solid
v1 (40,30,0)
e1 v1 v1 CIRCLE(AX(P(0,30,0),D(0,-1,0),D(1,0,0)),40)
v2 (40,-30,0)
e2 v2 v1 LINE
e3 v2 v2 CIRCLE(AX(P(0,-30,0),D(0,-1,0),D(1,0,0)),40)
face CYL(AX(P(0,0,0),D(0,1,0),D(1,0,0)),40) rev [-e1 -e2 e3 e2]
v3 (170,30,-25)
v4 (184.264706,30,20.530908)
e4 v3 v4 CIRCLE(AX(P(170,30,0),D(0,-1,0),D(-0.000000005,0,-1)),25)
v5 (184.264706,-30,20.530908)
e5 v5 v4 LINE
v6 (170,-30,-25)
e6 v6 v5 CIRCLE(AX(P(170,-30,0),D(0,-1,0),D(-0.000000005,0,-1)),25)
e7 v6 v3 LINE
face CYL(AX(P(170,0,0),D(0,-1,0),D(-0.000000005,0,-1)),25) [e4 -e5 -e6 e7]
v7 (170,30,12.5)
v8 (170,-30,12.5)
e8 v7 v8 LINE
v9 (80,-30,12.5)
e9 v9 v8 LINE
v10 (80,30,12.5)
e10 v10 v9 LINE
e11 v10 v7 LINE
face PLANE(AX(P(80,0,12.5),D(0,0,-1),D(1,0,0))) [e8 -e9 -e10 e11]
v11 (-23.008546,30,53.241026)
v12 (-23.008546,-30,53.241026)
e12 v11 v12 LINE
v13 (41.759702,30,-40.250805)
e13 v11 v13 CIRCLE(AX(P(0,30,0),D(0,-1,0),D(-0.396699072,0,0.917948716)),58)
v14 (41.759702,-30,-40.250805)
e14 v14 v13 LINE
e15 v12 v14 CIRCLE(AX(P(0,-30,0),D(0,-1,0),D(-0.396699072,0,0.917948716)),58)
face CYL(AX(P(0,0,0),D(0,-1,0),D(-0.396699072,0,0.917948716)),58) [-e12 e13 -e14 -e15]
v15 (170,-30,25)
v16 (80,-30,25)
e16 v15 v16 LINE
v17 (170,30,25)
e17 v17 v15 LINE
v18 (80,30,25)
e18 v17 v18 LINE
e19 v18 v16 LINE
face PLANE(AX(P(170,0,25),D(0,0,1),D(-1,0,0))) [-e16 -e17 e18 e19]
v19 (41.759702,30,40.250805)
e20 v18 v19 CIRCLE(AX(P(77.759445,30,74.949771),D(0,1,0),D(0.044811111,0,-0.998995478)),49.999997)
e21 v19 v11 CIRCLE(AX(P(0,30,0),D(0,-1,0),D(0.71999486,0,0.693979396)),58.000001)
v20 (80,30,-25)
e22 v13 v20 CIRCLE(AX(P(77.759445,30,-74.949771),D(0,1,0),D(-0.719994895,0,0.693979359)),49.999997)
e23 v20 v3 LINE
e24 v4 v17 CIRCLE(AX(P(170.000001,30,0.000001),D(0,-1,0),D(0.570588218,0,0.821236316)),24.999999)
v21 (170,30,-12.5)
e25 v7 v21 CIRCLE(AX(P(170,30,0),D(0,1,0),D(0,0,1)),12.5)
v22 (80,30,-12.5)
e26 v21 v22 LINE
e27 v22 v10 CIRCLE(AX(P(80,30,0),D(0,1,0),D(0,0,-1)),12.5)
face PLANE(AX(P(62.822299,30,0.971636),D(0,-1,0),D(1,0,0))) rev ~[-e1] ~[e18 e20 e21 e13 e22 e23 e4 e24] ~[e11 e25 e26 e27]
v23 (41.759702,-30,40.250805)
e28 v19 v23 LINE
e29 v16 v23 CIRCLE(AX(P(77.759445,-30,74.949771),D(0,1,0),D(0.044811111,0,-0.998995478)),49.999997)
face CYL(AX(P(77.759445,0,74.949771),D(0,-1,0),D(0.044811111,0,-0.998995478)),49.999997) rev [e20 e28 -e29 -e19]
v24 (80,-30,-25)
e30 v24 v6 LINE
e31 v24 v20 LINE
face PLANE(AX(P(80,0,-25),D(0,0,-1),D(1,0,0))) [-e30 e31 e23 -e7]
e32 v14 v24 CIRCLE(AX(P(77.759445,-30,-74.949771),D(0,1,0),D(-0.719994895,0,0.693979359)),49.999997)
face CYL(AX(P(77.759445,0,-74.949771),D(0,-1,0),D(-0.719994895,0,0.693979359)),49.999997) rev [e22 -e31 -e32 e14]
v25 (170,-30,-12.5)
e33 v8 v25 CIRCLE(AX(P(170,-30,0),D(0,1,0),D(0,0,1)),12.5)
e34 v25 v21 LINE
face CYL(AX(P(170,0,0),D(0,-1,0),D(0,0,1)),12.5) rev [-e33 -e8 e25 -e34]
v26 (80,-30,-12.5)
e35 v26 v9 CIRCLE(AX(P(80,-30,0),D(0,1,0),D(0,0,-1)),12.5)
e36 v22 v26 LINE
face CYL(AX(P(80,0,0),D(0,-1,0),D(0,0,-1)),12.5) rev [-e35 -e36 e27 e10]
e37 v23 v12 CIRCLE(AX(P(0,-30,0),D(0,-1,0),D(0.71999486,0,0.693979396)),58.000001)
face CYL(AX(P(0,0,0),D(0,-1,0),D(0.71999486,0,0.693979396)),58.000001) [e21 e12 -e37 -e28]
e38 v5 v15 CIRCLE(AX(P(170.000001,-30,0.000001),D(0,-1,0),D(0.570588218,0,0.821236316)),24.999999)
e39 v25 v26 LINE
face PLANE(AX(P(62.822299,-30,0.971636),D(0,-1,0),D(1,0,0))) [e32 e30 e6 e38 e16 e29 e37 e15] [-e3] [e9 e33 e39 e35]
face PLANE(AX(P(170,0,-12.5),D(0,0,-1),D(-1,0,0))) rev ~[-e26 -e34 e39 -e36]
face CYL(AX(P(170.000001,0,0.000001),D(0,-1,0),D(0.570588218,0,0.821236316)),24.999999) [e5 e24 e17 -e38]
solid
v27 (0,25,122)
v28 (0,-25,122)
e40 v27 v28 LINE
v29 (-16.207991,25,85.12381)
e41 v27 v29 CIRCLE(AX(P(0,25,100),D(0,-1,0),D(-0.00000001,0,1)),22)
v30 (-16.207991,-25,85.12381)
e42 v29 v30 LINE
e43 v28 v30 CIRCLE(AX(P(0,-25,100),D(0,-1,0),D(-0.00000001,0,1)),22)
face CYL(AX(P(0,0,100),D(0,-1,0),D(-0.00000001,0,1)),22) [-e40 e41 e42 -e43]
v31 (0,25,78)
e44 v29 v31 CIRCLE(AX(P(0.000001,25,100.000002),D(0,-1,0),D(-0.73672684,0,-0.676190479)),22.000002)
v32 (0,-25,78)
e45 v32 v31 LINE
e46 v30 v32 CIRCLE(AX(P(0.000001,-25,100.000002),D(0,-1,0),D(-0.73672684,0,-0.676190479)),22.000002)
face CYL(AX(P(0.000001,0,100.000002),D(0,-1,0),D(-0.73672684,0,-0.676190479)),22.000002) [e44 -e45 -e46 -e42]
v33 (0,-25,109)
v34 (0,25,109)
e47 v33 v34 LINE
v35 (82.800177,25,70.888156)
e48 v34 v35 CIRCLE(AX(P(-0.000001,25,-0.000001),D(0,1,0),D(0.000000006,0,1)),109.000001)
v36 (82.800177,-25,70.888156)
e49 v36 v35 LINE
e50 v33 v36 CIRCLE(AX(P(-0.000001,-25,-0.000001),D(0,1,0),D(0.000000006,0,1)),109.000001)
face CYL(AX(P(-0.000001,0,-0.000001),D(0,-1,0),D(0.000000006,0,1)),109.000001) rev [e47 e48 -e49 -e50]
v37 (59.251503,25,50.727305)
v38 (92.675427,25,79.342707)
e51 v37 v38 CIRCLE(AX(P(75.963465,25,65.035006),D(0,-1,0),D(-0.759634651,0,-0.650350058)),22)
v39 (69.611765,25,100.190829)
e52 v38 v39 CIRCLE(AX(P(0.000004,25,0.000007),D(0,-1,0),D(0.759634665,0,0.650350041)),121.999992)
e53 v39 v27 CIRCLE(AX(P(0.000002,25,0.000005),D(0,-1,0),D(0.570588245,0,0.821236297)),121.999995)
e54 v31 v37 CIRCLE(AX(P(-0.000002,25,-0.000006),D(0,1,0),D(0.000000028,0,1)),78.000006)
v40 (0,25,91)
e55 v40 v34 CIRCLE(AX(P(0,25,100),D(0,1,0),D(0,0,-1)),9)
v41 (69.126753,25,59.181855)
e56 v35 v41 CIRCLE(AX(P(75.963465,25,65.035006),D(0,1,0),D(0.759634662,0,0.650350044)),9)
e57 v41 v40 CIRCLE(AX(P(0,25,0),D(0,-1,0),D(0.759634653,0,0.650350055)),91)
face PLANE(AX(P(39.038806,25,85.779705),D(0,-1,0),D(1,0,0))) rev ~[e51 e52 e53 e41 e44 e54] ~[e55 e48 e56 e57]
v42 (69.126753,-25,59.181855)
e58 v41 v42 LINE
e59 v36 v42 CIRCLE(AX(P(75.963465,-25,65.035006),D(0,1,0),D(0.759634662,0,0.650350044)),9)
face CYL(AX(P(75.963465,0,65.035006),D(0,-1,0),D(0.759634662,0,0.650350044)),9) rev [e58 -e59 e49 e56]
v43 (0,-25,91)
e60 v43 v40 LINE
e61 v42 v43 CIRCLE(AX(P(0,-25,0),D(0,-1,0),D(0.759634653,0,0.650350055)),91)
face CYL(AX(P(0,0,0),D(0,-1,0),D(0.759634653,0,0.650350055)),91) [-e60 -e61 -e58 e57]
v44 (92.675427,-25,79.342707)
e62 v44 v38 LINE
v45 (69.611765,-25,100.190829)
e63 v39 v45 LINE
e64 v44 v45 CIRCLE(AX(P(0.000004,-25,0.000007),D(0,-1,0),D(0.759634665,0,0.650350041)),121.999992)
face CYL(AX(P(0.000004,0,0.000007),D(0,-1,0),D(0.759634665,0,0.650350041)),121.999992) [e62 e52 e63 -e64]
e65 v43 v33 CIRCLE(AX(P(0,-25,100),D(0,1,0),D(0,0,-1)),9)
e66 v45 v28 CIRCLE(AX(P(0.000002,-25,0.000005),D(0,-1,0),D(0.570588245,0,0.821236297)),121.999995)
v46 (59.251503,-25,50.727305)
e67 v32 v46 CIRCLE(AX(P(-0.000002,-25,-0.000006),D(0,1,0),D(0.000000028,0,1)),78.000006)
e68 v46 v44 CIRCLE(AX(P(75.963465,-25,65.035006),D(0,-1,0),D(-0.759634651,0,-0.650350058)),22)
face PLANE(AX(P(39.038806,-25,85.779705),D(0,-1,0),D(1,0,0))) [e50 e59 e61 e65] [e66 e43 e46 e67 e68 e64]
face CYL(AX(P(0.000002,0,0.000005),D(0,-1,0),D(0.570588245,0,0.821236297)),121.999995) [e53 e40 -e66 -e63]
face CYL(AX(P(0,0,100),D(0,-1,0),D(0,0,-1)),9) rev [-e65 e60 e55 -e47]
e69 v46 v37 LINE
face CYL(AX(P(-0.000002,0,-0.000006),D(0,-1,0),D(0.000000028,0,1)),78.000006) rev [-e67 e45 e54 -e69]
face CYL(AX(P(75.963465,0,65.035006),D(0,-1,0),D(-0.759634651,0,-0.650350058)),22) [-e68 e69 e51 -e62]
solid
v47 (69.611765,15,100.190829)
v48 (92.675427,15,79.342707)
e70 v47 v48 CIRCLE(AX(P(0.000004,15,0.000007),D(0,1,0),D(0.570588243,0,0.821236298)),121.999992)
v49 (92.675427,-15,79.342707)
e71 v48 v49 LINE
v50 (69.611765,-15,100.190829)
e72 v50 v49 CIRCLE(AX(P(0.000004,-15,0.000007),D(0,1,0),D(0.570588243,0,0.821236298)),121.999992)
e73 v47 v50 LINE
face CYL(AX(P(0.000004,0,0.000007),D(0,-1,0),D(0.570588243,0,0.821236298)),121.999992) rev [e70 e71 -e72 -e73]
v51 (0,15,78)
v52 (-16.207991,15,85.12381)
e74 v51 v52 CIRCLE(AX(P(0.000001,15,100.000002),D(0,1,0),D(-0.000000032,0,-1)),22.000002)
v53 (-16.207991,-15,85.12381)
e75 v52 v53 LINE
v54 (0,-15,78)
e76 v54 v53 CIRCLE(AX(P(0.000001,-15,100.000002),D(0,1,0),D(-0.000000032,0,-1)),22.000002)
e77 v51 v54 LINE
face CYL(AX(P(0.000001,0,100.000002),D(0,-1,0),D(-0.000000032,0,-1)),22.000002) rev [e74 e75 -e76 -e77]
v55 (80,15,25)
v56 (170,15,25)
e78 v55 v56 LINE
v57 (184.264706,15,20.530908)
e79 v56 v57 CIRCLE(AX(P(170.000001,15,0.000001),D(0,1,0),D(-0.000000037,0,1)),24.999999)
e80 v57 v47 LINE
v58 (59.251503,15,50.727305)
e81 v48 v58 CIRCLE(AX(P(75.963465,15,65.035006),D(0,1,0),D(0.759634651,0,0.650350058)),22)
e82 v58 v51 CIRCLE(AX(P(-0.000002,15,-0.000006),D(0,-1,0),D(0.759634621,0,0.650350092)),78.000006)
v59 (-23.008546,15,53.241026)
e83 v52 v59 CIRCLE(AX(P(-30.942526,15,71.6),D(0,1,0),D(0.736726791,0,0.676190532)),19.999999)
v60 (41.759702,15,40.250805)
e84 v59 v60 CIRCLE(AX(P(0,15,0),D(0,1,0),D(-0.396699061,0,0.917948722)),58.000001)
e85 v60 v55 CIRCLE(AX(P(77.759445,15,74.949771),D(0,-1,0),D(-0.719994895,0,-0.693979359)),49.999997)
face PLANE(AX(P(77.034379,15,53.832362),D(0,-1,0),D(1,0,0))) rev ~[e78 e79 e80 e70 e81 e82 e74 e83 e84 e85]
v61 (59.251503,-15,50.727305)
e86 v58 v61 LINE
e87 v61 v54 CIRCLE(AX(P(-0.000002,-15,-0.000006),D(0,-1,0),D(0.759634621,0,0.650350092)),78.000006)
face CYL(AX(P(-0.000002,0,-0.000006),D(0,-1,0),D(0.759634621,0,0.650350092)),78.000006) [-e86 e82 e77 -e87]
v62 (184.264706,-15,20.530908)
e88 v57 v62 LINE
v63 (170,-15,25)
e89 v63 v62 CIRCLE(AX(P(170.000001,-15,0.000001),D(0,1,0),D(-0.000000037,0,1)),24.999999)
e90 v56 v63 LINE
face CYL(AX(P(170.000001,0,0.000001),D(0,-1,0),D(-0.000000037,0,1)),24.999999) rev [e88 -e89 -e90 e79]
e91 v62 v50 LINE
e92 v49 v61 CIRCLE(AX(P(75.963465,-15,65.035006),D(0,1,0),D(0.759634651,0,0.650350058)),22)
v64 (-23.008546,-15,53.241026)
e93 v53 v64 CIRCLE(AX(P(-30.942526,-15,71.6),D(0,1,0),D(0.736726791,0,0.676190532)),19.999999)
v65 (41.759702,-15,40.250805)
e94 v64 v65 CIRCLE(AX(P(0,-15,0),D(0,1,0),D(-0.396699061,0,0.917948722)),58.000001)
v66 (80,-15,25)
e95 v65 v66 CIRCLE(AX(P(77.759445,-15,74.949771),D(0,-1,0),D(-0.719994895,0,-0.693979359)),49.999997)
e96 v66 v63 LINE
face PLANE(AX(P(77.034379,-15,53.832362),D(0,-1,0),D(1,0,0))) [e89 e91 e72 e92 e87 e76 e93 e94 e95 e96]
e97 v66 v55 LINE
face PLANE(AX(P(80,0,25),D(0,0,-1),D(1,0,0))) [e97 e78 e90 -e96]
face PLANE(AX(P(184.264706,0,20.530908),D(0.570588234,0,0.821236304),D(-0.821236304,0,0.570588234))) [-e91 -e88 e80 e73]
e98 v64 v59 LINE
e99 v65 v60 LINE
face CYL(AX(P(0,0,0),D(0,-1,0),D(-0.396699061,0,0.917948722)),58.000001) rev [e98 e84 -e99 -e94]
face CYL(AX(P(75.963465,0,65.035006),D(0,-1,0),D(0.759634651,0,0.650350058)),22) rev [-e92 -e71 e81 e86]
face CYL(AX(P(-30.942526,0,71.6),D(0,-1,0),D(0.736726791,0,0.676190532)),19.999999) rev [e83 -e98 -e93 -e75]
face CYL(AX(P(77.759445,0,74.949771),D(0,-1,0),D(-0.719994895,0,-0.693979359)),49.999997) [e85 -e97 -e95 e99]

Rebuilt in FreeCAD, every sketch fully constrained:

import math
import FreeCAD as App
import Part
import Sketcher
Q = App.Units.Quantity

doc = App.newDocument("Part")
body = doc.addObject("PartDesign::Body", "Body")

# Sketch on XZ plane
sketch1 = body.newObject("Sketcher::SketchObject", "Sketch")
sketch1.AttachmentSupport = (doc.getObject("XZ_Plane"), [""])
sketch1.MapMode = "FlatFace"
sketch1.addGeometry([
    Part.ArcOfCircle(Part.Circle(App.Vector(170.000001, 0.000001, 0), App.Vector(0, 0, 1), 24.999999), math.radians(55.208746), math.radians(90.000002)),  # 0
    Part.LineSegment(App.Vector(170, 25, 0), App.Vector(80, 25, 0)),  # 1
    Part.ArcOfCircle(Part.Circle(App.Vector(77.759445, 74.949771, 0), App.Vector(0, 0, 1), 49.999997), math.radians(-136.054059), math.radians(-87.431652)),  # 2
    Part.ArcOfCircle(Part.Circle(App.Vector(0, 0, 0), App.Vector(0, 0, 1), 58.000001), math.radians(43.945944), math.radians(113.371982)),  # 3
    Part.ArcOfCircle(Part.Circle(App.Vector(0, 0, 0), App.Vector(0, 0, 1), 58), math.radians(113.371983), math.radians(316.054056)),  # 4
    Part.ArcOfCircle(Part.Circle(App.Vector(77.759445, -74.949771, 0), App.Vector(0, 0, 1), 49.999997), math.radians(87.431652), math.radians(136.054059)),  # 5
    Part.LineSegment(App.Vector(80, -25, 0), App.Vector(170, -25, 0)),  # 6
    Part.ArcOfCircle(Part.Circle(App.Vector(170, 0, 0), App.Vector(0, 0, 1), 25), math.radians(-90), math.radians(55.208745)),  # 7
    Part.Circle(App.Vector(0, 0, 0), App.Vector(0, 0, 1), 40),  # 8
    Part.ArcOfCircle(Part.Circle(App.Vector(170, 0, 0), App.Vector(0, 0, 1), 12.5), math.radians(-90), math.radians(90)),  # 9
    Part.LineSegment(App.Vector(170, -12.5, 0), App.Vector(80, -12.5, 0)),  # 10
    Part.ArcOfCircle(Part.Circle(App.Vector(80, 0, 0), App.Vector(0, 0, 1), 12.5), math.radians(90), math.radians(270)),  # 11
    Part.LineSegment(App.Vector(80, 12.5, 0), App.Vector(170, 12.5, 0)),  # 12
], False)
sketch1.addConstraint([
    Sketcher.Constraint("Tangent", 0, 2, 1, 1),
    Sketcher.Constraint("Coincident", 1, 2, 2, 2),
    Sketcher.Constraint("Tangent", 2, 1, 3, 1),
    Sketcher.Constraint("Tangent", 3, 2, 4, 1),
    Sketcher.Constraint("Tangent", 4, 2, 5, 2),
    Sketcher.Constraint("Coincident", 5, 1, 6, 1),
    Sketcher.Constraint("Tangent", 6, 2, 7, 1),
    Sketcher.Constraint("Tangent", 7, 2, 0, 1),
    Sketcher.Constraint("Tangent", 9, 1, 10, 1),
    Sketcher.Constraint("Tangent", 10, 2, 11, 2),
    Sketcher.Constraint("Tangent", 11, 1, 12, 1),
    Sketcher.Constraint("Tangent", 12, 2, 9, 2),
    Sketcher.Constraint("Horizontal", 1),
    Sketcher.Constraint("Horizontal", 6),
    Sketcher.Constraint("Horizontal", 10),
    Sketcher.Constraint("Horizontal", 12),
    Sketcher.Constraint("Coincident", 3, 3, -1, 1),
    Sketcher.Constraint("Coincident", 8, 3, -1, 1),
    Sketcher.Constraint("Coincident", 9, 3, 0, 3),
    Sketcher.Constraint("Equal", 3, 4),
    Sketcher.Constraint("Equal", 2, 5),
    Sketcher.Constraint("Equal", 0, 7),
    Sketcher.Constraint("Symmetric", 1, 2, 5, 1, -1),
    Sketcher.Constraint("Vertical", 11, 3, 1, 2),
    Sketcher.Constraint("Diameter", 8, Q("80 mm")),
    Sketcher.Constraint("Radius", 0, Q("24.999999 mm")),
    Sketcher.Constraint("Radius", 3, Q("58.000001 mm")),
    Sketcher.Constraint("Radius", 9, Q("12.5 mm")),
    Sketcher.Constraint("DistanceX", 1, 2, 1, 1, Q("90 mm")),
    Sketcher.Constraint("DistanceX", -1, 1, 0, 3, Q("170.000001 mm")),
    Sketcher.Constraint("Radius", 2, Q("49.999997 mm")),
    Sketcher.Constraint("DistanceY", -1, 1, 7, 2, Q("20.530908 mm")),
    Sketcher.Constraint("DistanceY", 2, 1, 3, 2, Q("12.990221 mm")),
])
pad1 = body.newObject("PartDesign::Pad", "Pad")
pad1.Profile = sketch1
pad1.Length = 60
pad1.Midplane = True
body2 = doc.addObject("PartDesign::Body", "Body001")

# Sketch on XZ plane
sketch2 = body2.newObject("Sketcher::SketchObject", "Sketch001")
sketch2.AttachmentSupport = (doc.getObject("XZ_Plane001"), [""])
sketch2.MapMode = "FlatFace"
sketch2.addGeometry([
    Part.ArcOfCircle(Part.Circle(App.Vector(0.000004, 0.000007, 0), App.Vector(0, 0, 1), 121.999992), math.radians(40.567999), math.radians(55.208744)),  # 0
    Part.ArcOfCircle(Part.Circle(App.Vector(0.000002, 0.000005, 0), App.Vector(0, 0, 1), 121.999995), math.radians(55.208744), math.radians(90.000001)),  # 1
    Part.ArcOfCircle(Part.Circle(App.Vector(0, 100, 0), App.Vector(0, 0, 1), 22), math.radians(90.000001), math.radians(222.546664)),  # 2
    Part.ArcOfCircle(Part.Circle(App.Vector(0.000001, 100.000002, 0), App.Vector(0, 0, 1), 22.000002), math.radians(-137.453334), math.radians(-90.000002)),  # 3
    Part.ArcOfCircle(Part.Circle(App.Vector(-0.000002, -0.000006, 0), App.Vector(0, 0, 1), 78.000006), math.radians(40.568003), math.radians(89.999998)),  # 4
    Part.ArcOfCircle(Part.Circle(App.Vector(75.963465, 65.035006, 0), App.Vector(0, 0, 1), 22), math.radians(-139.432), math.radians(40.568)),  # 5
    Part.ArcOfCircle(Part.Circle(App.Vector(75.963465, 65.035006, 0), App.Vector(0, 0, 1), 9), math.radians(-139.432), math.radians(40.567999)),  # 6
    Part.ArcOfCircle(Part.Circle(App.Vector(0, 0, 0), App.Vector(0, 0, 1), 91), math.radians(40.568), math.radians(90)),  # 7
    Part.ArcOfCircle(Part.Circle(App.Vector(0, 100, 0), App.Vector(0, 0, 1), 9), math.radians(90), math.radians(270)),  # 8
    Part.ArcOfCircle(Part.Circle(App.Vector(-0.000001, -0.000001, 0), App.Vector(0, 0, 1), 109.000001), math.radians(40.568), math.radians(90)),  # 9
], False)
sketch2.addConstraint([
    Sketcher.Constraint("Tangent", 0, 2, 1, 1),
    Sketcher.Constraint("Tangent", 1, 2, 2, 1),
    Sketcher.Constraint("Tangent", 2, 2, 3, 1),
    Sketcher.Constraint("Tangent", 3, 2, 4, 2),
    Sketcher.Constraint("Tangent", 4, 1, 5, 1),
    Sketcher.Constraint("Tangent", 5, 2, 0, 1),
    Sketcher.Constraint("Tangent", 6, 1, 7, 1),
    Sketcher.Constraint("Tangent", 7, 2, 8, 2),
    Sketcher.Constraint("Tangent", 8, 1, 9, 2),
    Sketcher.Constraint("Tangent", 9, 1, 6, 2),
    Sketcher.Constraint("Coincident", 0, 3, -1, 1),
    Sketcher.Constraint("Coincident", 4, 3, -1, 1),
    Sketcher.Constraint("Coincident", 7, 3, -1, 1),
    Sketcher.Constraint("Coincident", 9, 3, -1, 1),
    Sketcher.Constraint("Coincident", 6, 3, 5, 3),
    Sketcher.Constraint("Coincident", 8, 3, 2, 3),
    Sketcher.Constraint("Equal", 2, 3),
    Sketcher.Constraint("PointOnObject", 2, 3, -2),
    Sketcher.Constraint("Radius", 2, Q("22 mm")),
    Sketcher.Constraint("Radius", 6, Q("9 mm")),
    Sketcher.Constraint("Radius", 7, Q("91 mm")),
    Sketcher.Constraint("DistanceY", 0, 3, 5, 3, Q("65.034999 mm")),
    Sketcher.Constraint("DistanceX", 0, 2, 5, 3, Q("6.3517 mm")),
    Sketcher.Constraint("DistanceX", 2, 2, -1, 1, Q("16.207991 mm")),
])
pad2 = body2.newObject("PartDesign::Pad", "Pad001")
pad2.Profile = sketch2
pad2.Length = 50
pad2.Midplane = True
body3 = doc.addObject("PartDesign::Body", "Body002")

# Sketch on XZ plane
sketch3 = body3.newObject("Sketcher::SketchObject", "Sketch002")
sketch3.AttachmentSupport = (doc.getObject("XZ_Plane002"), [""])
sketch3.MapMode = "FlatFace"
sketch3.addGeometry([
    Part.LineSegment(App.Vector(80, 25, 0), App.Vector(170, 25, 0)),  # 0
    Part.ArcOfCircle(Part.Circle(App.Vector(170.000001, 0.000001, 0), App.Vector(0, 0, 1), 24.999999), math.radians(55.208746), math.radians(90.000002)),  # 1
    Part.LineSegment(App.Vector(184.264706, 20.530908, 0), App.Vector(69.611765, 100.190829, 0)),  # 2
    Part.ArcOfCircle(Part.Circle(App.Vector(0.000004, 0.000007, 0), App.Vector(0, 0, 1), 121.999992), math.radians(40.567999), math.radians(55.208744)),  # 3
    Part.ArcOfCircle(Part.Circle(App.Vector(75.963465, 65.035006, 0), App.Vector(0, 0, 1), 22), math.radians(-139.432), math.radians(40.568)),  # 4
    Part.ArcOfCircle(Part.Circle(App.Vector(-0.000002, -0.000006, 0), App.Vector(0, 0, 1), 78.000006), math.radians(40.568003), math.radians(89.999998)),  # 5
    Part.ArcOfCircle(Part.Circle(App.Vector(0.000001, 100.000002, 0), App.Vector(0, 0, 1), 22.000002), math.radians(-137.453334), math.radians(-90.000002)),  # 6
    Part.ArcOfCircle(Part.Circle(App.Vector(-30.942526, 71.6, 0), App.Vector(0, 0, 1), 19.999999), math.radians(-66.62802), math.radians(42.54667)),  # 7
    Part.ArcOfCircle(Part.Circle(App.Vector(0, 0, 0), App.Vector(0, 0, 1), 58.000001), math.radians(43.945944), math.radians(113.371982)),  # 8
    Part.ArcOfCircle(Part.Circle(App.Vector(77.759445, 74.949771, 0), App.Vector(0, 0, 1), 49.999997), math.radians(-136.054059), math.radians(-87.431652)),  # 9
], False)
sketch3.addConstraint([
    Sketcher.Constraint("Tangent", 0, 2, 1, 2),
    Sketcher.Constraint("Tangent", 1, 1, 2, 1),
    Sketcher.Constraint("Tangent", 2, 2, 3, 2),
    Sketcher.Constraint("Tangent", 3, 1, 4, 2),
    Sketcher.Constraint("Tangent", 4, 1, 5, 1),
    Sketcher.Constraint("Tangent", 5, 2, 6, 2),
    Sketcher.Constraint("Tangent", 6, 1, 7, 2),
    Sketcher.Constraint("Tangent", 7, 1, 8, 2),
    Sketcher.Constraint("Tangent", 8, 1, 9, 1),
    Sketcher.Constraint("Coincident", 9, 2, 0, 1),
    Sketcher.Constraint("Horizontal", 0),
    Sketcher.Constraint("Coincident", 3, 3, -1, 1),
    Sketcher.Constraint("Coincident", 5, 3, -1, 1),
    Sketcher.Constraint("Coincident", 8, 3, -1, 1),
    Sketcher.Constraint("PointOnObject", 1, 3, -1),
    Sketcher.Constraint("PointOnObject", 6, 3, -2),
    Sketcher.Constraint("Radius", 1, Q("24.999999 mm")),
    Sketcher.Constraint("Radius", 4, Q("22 mm")),
    Sketcher.Constraint("Radius", 6, Q("22.000002 mm")),
    Sketcher.Constraint("Radius", 7, Q("19.999999 mm")),
    Sketcher.Constraint("Radius", 8, Q("58.000001 mm")),
    Sketcher.Constraint("DistanceX", 0, 1, 0, 2, Q("90 mm")),
    Sketcher.Constraint("DistanceX", -1, 1, 1, 3, Q("170.000001 mm")),
    Sketcher.Constraint("DistanceY", -1, 1, 6, 3, Q("100.000002 mm")),
    Sketcher.Constraint("Radius", 9, Q("49.999997 mm")),
    Sketcher.Constraint("DistanceY", 3, 3, 4, 3, Q("65.034999 mm")),
])
pad3 = body3.newObject("PartDesign::Pad", "Pad002")
pad3.Profile = sketch3
pad3.Length = 30
pad3.Midplane = True

doc.recompute()
